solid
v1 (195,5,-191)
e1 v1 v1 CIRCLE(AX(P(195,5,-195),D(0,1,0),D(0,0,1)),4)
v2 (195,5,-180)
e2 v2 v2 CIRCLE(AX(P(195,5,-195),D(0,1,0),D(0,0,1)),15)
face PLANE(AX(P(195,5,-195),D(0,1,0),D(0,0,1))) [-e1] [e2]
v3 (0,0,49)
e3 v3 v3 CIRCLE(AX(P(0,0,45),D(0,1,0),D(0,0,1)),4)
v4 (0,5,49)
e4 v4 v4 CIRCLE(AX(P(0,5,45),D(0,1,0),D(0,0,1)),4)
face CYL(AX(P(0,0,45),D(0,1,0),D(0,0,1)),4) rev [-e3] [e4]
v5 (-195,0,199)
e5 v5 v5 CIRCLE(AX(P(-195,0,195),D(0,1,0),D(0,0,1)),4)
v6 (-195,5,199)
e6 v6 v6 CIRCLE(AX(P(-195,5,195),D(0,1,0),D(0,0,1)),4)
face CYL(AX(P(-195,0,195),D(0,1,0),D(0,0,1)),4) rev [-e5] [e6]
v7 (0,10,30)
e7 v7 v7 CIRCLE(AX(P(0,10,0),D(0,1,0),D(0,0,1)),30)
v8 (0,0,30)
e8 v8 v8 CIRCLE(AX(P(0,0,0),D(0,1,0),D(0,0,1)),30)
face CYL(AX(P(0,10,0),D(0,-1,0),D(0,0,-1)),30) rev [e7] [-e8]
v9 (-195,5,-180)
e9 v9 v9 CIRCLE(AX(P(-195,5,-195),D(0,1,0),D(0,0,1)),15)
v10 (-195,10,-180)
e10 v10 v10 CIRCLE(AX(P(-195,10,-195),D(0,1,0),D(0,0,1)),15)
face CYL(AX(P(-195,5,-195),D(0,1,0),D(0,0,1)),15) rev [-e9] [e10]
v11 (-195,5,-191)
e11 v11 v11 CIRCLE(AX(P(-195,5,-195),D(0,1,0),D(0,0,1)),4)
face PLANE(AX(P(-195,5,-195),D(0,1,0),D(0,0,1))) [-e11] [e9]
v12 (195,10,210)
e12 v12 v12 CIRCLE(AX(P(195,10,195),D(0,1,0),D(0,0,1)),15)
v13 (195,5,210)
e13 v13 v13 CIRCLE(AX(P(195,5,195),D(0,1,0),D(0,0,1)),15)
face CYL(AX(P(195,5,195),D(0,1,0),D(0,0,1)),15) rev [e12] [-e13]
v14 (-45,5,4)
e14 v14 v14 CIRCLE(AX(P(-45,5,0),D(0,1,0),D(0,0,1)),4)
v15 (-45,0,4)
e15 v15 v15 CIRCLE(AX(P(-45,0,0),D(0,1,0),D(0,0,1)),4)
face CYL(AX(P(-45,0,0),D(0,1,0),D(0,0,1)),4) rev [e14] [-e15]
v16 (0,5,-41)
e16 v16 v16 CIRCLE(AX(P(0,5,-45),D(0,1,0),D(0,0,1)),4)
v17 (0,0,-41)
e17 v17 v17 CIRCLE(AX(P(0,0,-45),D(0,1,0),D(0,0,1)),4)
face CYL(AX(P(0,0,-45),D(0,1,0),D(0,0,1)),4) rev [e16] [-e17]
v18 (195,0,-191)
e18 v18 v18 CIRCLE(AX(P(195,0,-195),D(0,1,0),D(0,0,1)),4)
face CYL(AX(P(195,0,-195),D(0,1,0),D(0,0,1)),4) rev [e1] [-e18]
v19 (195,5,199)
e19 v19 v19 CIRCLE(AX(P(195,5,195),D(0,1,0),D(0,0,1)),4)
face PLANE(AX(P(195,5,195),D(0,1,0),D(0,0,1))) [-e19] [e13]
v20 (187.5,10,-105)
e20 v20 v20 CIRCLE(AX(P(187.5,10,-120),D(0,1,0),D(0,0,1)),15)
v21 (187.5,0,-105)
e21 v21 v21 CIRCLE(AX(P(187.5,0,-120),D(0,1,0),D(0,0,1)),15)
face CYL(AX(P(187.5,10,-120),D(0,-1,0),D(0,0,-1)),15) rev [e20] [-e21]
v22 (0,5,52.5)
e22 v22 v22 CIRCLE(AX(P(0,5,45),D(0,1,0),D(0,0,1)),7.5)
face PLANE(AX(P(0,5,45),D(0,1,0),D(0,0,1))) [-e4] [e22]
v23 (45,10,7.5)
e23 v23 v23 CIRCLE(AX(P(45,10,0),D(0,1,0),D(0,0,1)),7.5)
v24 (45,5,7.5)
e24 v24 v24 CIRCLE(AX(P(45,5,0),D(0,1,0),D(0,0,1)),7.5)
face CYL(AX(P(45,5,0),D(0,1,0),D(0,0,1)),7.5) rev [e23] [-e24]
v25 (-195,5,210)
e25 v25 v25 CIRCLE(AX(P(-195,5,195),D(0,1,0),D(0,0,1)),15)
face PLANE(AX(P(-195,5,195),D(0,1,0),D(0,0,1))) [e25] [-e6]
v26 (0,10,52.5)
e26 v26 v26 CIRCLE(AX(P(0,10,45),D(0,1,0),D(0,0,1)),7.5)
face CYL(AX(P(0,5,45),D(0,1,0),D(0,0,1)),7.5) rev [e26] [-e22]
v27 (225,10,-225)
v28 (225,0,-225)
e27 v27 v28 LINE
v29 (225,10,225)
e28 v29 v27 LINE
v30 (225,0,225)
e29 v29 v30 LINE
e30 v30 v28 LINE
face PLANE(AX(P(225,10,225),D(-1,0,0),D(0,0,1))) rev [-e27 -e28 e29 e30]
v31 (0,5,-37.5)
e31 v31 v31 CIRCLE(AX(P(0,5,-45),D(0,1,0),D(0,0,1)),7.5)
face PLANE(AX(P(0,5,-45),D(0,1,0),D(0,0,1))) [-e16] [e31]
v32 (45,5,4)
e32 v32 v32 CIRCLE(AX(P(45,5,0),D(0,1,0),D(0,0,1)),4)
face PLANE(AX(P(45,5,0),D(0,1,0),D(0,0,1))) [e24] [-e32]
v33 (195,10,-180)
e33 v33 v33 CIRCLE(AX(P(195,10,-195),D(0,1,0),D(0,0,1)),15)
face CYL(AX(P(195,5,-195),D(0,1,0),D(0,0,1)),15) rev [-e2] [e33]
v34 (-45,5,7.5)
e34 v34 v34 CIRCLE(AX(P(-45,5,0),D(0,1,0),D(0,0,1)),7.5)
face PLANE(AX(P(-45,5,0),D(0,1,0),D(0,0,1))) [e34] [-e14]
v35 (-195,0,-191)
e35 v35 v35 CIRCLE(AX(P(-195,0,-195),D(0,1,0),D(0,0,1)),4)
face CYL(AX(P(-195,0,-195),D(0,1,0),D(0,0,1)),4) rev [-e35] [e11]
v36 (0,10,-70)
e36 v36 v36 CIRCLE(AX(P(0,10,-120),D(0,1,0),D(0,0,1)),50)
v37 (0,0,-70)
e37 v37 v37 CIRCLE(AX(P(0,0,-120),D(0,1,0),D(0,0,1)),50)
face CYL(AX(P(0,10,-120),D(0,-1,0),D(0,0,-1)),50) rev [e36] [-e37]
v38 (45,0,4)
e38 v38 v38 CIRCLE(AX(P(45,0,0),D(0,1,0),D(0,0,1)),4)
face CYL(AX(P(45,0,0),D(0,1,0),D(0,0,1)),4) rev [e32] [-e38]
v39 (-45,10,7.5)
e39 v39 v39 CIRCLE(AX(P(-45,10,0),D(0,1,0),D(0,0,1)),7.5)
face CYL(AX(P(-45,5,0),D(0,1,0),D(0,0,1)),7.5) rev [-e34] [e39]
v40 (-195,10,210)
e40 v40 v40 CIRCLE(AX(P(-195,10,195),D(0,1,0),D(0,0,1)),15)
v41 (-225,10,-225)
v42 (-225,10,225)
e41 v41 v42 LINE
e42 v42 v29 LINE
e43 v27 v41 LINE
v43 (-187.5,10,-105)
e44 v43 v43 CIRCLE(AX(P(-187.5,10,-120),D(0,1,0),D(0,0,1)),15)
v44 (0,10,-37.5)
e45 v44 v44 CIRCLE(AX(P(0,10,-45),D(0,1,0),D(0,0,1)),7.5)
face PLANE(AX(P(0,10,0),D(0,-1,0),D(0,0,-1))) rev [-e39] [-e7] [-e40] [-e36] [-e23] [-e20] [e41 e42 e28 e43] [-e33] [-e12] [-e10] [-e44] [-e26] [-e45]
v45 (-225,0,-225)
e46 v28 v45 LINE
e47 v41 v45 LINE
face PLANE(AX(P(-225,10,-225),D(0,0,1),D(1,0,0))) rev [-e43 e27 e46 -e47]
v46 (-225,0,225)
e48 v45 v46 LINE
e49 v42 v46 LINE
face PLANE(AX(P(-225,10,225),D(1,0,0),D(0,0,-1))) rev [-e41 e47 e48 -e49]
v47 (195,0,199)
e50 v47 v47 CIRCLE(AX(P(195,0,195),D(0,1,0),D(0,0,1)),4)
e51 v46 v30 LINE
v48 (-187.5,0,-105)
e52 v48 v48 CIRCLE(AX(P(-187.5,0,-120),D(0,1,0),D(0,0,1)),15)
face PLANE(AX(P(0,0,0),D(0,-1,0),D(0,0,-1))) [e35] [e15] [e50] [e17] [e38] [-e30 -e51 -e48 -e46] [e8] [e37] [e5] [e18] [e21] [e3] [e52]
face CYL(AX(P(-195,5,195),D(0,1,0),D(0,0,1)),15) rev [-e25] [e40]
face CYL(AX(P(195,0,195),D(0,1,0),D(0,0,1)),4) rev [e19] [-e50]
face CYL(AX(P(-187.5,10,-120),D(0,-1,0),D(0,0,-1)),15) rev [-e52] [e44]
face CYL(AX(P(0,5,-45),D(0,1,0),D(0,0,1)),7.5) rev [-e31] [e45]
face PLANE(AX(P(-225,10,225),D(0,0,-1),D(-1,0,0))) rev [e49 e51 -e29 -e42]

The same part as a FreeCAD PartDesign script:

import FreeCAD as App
import Part
import Sketcher

V = App.Vector

doc = App.newDocument("Part")
body = doc.addObject("PartDesign::Body", "Body")

sketch1 = body.newObject("Sketcher::SketchObject", "Sketch")
sketch1.AttachmentSupport = (doc.getObject("XZ_Plane"), [""])
sketch1.MapMode = "FlatFace"
sketch1.addGeometry(Part.LineSegment(V(-225, -225, 0), V(-225, 225, 0)), False)
sketch1.addGeometry(Part.LineSegment(V(-225, 225, 0), V(225, 225, 0)), False)
sketch1.addGeometry(Part.LineSegment(V(225, 225, 0), V(225, -225, 0)), False)
sketch1.addGeometry(Part.LineSegment(V(225, -225, 0), V(-225, -225, 0)), False)
sketch1.addGeometry(Part.Circle(V(0, 0, 0), V(0, 0, 1), 30), False)
sketch1.addGeometry(Part.Circle(V(-188, -120, 0), V(0, 0, 1), 15), False)
sketch1.addGeometry(Part.Circle(V(0, -120, 0), V(0, 0, 1), 50), False)
sketch1.addGeometry(Part.Circle(V(188, -120, 0), V(0, 0, 1), 15), False)
sketch1.addConstraint(Sketcher.Constraint("Coincident", 0, 2, 1, 1))
sketch1.addConstraint(Sketcher.Constraint("Coincident", 1, 2, 2, 1))
sketch1.addConstraint(Sketcher.Constraint("Coincident", 2, 2, 3, 1))
sketch1.addConstraint(Sketcher.Constraint("Coincident", 3, 2, 0, 1))
sketch1.addConstraint(Sketcher.Constraint("Vertical", 0))
sketch1.addConstraint(Sketcher.Constraint("Horizontal", 1))
sketch1.addConstraint(Sketcher.Constraint("Vertical", 2))
sketch1.addConstraint(Sketcher.Constraint("Horizontal", 3))
sketch1.addConstraint(Sketcher.Constraint("Coincident", 4, 3, -1, 1))
sketch1.addConstraint(Sketcher.Constraint("Equal", 5, 7))
sketch1.addConstraint(Sketcher.Constraint("Symmetric", 0, 2, 2, 2, -1, 1))
sketch1.addConstraint(Sketcher.Constraint("Symmetric", 5, 3, 7, 3, -2))
sketch1.addConstraint(Sketcher.Constraint("PointOnObject", 6, 3, -2))
sketch1.addConstraint(Sketcher.Constraint("Horizontal", 5, 3, 6, 3))
sketch1.addConstraint(Sketcher.Constraint("Equal", 3, 0))
sketch1.addConstraint(Sketcher.Constraint("Diameter", 4, 60.0))
sketch1.addConstraint(Sketcher.Constraint("Diameter", 5, 30.0))
sketch1.addConstraint(Sketcher.Constraint("Diameter", 6, 100.0))
sketch1.addConstraint(Sketcher.Constraint("DistanceX", 1, 1, 1, 2, 450.0))
sketch1.addConstraint(Sketcher.Constraint("DistanceY", 5, 3, -1, 1, 120.0))
sketch1.addConstraint(Sketcher.Constraint("DistanceX", 5, 3, 7, 3, 375.0))
pad1 = body.newObject("PartDesign::Pad", "Pad")
pad1.Profile = sketch1
pad1.Length = 10
pad1.Reversed = True

sketch2 = body.newObject("Sketcher::SketchObject", "Sketch001")
sketch2.AttachmentSupport = (doc.getObject("XZ_Plane"), [""])
sketch2.MapMode = "FlatFace"
sketch2.AttachmentOffset = App.Placement(V(0, 0, -10), App.Rotation())
sketch2.addGeometry(Part.Circle(V(-195, -195, 0), V(0, 0, 1), 15), False)
sketch2.addGeometry(Part.Circle(V(195, -195, 0), V(0, 0, 1), 15), False)
sketch2.addGeometry(Part.Circle(V(195, 195, 0), V(0, 0, 1), 15), False)
sketch2.addGeometry(Part.Circle(V(-195, 195, 0), V(0, 0, 1), 15), False)
sketch2.addGeometry(Part.Circle(V(-45, 0, 0), V(0, 0, 1), 8), False)
sketch2.addGeometry(Part.Circle(V(0, -45, 0), V(0, 0, 1), 8), False)
sketch2.addGeometry(Part.Circle(V(0, 45, 0), V(0, 0, 1), 8), False)
sketch2.addGeometry(Part.Circle(V(45, 0, 0), V(0, 0, 1), 8), False)
sketch2.addConstraint(Sketcher.Constraint("Equal", 0, 1))
sketch2.addConstraint(Sketcher.Constraint("Equal", 1, 2))
sketch2.addConstraint(Sketcher.Constraint("Equal", 2, 3))
sketch2.addConstraint(Sketcher.Constraint("Equal", 4, 5))
sketch2.addConstraint(Sketcher.Constraint("Equal", 5, 6))
sketch2.addConstraint(Sketcher.Constraint("Equal", 6, 7))
sketch2.addConstraint(Sketcher.Constraint("Symmetric", 0, 3, 2, 3, -1, 1))
sketch2.addConstraint(Sketcher.Constraint("Symmetric", 1, 3, 3, 3, -1, 1))
sketch2.addConstraint(Sketcher.Constraint("Symmetric", 5, 3, 6, 3, -1, 1))
sketch2.addConstraint(Sketcher.Constraint("Symmetric", 4, 3, 7, 3, -1, 1))
sketch2.addConstraint(Sketcher.Constraint("Symmetric", 0, 3, 1, 3, -2))
sketch2.addConstraint(Sketcher.Constraint("PointOnObject", 4, 3, -1))
sketch2.addConstraint(Sketcher.Constraint("PointOnObject", 5, 3, -2))
sketch2.addConstraint(Sketcher.Constraint("Diameter", 0, 30.0))
sketch2.addConstraint(Sketcher.Constraint("Diameter", 4, 15.0))
sketch2.addConstraint(Sketcher.Constraint("DistanceX", 0, 3, -1, 1, 195.0))
sketch2.addConstraint(Sketcher.Constraint("DistanceY", 0, 3, -1, 1, 195.0))
sketch2.addConstraint(Sketcher.Constraint("DistanceX", 4, 3, -1, 1, 45.0))
sketch2.addConstraint(Sketcher.Constraint("DistanceY", 5, 3, -1, 1, 45.0))
pocket1 = body.newObject("PartDesign::Pocket", "Pocket")
pocket1.Profile = sketch2
pocket1.Length = 5
pocket1.Reversed = True

sketch3 = body.newObject("Sketcher::SketchObject", "Sketch002")
sketch3.AttachmentSupport = (doc.getObject("XZ_Plane"), [""])
sketch3.MapMode = "FlatFace"
sketch3.AttachmentOffset = App.Placement(V(0, 0, -5), App.Rotation())
sketch3.addGeometry(Part.Circle(V(195, 195, 0), V(0, 0, 1), 4), False)
sketch3.addGeometry(Part.Circle(V(-195, 195, 0), V(0, 0, 1), 4), False)
sketch3.addGeometry(Part.Circle(V(-45, 0, 0), V(0, 0, 1), 4), False)
sketch3.addGeometry(Part.Circle(V(45, 0, 0), V(0, 0, 1), 4), False)
sketch3.addGeometry(Part.Circle(V(0, 45, 0), V(0, 0, 1), 4), False)
sketch3.addGeometry(Part.Circle(V(0, -45, 0), V(0, 0, 1), 4), False)
sketch3.addGeometry(Part.Circle(V(195, -195, 0), V(0, 0, 1), 4), False)
sketch3.addGeometry(Part.Circle(V(-195, -195, 0), V(0, 0, 1), 4), False)
sketch3.addConstraint(Sketcher.Constraint("Equal", 0, 1))
sketch3.addConstraint(Sketcher.Constraint("Equal", 1, 2))
sketch3.addConstraint(Sketcher.Constraint("Equal", 2, 3))
sketch3.addConstraint(Sketcher.Constraint("Equal", 3, 4))
sketch3.addConstraint(Sketcher.Constraint("Equal", 4, 5))
sketch3.addConstraint(Sketcher.Constraint("Equal", 5, 6))
sketch3.addConstraint(Sketcher.Constraint("Equal", 6, 7))
sketch3.addConstraint(Sketcher.Constraint("Symmetric", 2, 3, 3, 3, -1, 1))
sketch3.addConstraint(Sketcher.Constraint("Symmetric", 4, 3, 5, 3, -1, 1))
sketch3.addConstraint(Sketcher.Constraint("Symmetric", 1, 3, 6, 3, -1, 1))
sketch3.addConstraint(Sketcher.Constraint("Symmetric", 0, 3, 7, 3, -1, 1))
sketch3.addConstraint(Sketcher.Constraint("Symmetric", 0, 3, 1, 3, -2))
sketch3.addConstraint(Sketcher.Constraint("PointOnObject", 2, 3, -1))
sketch3.addConstraint(Sketcher.Constraint("PointOnObject", 4, 3, -2))
sketch3.addConstraint(Sketcher.Constraint("Diameter", 0, 8.0))
sketch3.addConstraint(Sketcher.Constraint("DistanceX", -1, 1, 0, 3, 195.0))
sketch3.addConstraint(Sketcher.Constraint("DistanceY", -1, 1, 0, 3, 195.0))
sketch3.addConstraint(Sketcher.Constraint("DistanceX", 2, 3, -1, 1, 45.0))
sketch3.addConstraint(Sketcher.Constraint("DistanceY", -1, 1, 4, 3, 45.0))
pocket2 = body.newObject("PartDesign::Pocket", "Pocket001")
pocket2.Profile = sketch3
pocket2.Length = 5
pocket2.Reversed = True

doc.recompute()
